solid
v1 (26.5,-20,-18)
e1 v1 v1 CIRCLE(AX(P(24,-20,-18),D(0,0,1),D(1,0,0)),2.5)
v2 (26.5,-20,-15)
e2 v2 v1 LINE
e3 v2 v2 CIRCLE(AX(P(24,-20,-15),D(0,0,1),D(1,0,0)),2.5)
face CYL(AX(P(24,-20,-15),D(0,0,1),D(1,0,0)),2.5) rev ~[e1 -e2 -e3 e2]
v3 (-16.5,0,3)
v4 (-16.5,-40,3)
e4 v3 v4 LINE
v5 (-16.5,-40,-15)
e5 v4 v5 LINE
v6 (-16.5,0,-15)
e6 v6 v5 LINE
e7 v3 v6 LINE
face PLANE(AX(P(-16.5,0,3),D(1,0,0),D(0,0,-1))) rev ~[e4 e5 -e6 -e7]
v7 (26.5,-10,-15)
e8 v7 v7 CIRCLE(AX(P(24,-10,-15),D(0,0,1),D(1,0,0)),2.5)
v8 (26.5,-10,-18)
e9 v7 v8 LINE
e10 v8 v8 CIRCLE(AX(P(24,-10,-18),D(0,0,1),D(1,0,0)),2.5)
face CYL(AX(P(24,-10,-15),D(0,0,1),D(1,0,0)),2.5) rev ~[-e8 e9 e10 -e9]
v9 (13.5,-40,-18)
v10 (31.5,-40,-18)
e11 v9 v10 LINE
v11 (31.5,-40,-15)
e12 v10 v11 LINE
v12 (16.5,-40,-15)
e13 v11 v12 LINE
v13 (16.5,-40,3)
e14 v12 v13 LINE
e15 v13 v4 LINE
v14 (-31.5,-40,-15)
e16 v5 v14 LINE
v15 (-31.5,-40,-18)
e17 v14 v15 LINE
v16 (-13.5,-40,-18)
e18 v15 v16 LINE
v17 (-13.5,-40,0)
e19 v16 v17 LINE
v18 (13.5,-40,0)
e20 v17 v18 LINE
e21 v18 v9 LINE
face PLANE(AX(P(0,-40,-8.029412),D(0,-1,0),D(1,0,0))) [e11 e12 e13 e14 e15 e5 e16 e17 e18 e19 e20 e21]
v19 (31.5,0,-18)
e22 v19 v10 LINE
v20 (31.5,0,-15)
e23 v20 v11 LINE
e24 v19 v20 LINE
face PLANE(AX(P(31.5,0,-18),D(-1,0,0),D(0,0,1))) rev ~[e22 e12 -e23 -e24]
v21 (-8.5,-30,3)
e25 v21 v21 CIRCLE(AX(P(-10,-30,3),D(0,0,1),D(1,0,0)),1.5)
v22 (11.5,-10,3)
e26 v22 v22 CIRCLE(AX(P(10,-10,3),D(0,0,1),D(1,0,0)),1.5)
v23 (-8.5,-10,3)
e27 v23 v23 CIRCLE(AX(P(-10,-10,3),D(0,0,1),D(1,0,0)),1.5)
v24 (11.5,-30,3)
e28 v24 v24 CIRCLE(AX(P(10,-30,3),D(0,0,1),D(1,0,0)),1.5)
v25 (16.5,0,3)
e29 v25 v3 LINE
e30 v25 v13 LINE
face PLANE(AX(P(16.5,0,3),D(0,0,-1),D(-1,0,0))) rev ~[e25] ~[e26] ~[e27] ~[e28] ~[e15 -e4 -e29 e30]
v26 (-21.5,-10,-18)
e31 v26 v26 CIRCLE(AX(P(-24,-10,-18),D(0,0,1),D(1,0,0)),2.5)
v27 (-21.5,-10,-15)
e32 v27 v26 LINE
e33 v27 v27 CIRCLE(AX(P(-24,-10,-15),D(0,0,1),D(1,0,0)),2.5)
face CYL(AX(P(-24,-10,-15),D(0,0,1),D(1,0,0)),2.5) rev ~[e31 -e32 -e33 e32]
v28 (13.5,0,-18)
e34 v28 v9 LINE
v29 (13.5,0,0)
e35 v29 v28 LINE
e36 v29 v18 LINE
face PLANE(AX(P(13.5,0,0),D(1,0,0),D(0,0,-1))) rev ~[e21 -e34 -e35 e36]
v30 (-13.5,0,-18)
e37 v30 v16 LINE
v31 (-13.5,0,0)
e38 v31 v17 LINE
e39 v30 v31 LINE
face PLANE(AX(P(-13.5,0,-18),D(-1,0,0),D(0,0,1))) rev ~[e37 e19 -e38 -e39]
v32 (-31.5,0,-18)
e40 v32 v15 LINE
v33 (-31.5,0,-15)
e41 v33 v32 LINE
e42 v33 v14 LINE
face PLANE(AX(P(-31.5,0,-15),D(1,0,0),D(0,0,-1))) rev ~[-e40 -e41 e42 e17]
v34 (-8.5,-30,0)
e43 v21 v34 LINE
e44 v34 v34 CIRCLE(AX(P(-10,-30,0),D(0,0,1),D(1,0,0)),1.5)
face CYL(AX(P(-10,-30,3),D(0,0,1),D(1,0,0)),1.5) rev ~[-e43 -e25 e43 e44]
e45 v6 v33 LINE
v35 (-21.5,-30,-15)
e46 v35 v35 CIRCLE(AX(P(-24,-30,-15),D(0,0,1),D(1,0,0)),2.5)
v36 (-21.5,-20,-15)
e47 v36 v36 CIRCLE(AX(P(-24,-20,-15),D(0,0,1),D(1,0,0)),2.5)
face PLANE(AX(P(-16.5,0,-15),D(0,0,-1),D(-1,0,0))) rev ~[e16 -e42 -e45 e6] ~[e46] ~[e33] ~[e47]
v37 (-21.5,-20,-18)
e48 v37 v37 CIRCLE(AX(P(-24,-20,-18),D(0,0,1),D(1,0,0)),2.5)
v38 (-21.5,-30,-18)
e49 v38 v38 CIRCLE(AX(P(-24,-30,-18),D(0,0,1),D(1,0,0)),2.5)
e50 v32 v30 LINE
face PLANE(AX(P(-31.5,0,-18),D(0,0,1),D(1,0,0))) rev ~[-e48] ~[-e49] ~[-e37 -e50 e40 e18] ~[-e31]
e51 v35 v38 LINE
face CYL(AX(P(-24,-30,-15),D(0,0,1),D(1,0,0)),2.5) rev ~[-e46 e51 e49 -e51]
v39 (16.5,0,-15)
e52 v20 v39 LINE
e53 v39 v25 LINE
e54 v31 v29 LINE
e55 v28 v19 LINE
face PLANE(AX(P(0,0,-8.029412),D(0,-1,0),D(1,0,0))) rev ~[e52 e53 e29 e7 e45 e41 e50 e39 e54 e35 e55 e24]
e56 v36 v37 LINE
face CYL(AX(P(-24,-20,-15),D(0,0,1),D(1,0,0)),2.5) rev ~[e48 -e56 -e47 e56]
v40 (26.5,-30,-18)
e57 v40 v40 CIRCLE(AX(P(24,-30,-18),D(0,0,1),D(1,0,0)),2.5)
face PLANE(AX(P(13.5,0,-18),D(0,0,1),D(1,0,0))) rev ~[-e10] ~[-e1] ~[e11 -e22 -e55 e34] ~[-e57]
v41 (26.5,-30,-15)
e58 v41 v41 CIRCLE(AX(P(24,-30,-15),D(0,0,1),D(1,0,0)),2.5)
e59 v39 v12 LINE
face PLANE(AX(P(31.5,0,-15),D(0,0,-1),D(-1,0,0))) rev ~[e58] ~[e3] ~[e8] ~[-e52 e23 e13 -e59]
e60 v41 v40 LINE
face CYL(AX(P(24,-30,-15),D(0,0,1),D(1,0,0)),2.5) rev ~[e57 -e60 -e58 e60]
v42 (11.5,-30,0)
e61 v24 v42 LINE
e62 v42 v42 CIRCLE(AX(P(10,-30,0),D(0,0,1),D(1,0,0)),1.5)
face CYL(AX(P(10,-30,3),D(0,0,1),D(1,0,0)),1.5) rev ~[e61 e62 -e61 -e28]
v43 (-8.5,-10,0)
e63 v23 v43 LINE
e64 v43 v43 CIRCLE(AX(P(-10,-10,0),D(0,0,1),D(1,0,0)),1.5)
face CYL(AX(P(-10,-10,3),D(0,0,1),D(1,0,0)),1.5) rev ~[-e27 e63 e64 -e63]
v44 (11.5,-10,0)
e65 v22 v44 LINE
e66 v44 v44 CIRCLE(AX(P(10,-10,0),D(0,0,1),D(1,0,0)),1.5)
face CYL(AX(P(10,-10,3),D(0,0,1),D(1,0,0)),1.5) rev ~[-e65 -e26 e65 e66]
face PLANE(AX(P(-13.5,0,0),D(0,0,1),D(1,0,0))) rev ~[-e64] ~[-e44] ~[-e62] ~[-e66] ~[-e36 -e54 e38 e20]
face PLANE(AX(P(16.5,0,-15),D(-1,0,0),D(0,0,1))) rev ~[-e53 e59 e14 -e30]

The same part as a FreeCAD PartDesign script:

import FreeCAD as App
import Part
import Sketcher

V = App.Vector

doc = App.newDocument("Part")
params = doc.addObject("Spreadsheet::Sheet", "Params")
for row, (alias, value) in enumerate([
    ("sketch1_width", "27 mm"),
    ("sketch1_width2", "18 mm"),
    ("sketch1_width3", "15 mm"),
    ("sketch1_height", "3 mm"),
    ("pad1_length", "40 mm"),
    ("sketch2_diameter", "3 mm"),
    ("pocket1_length", "25 mm"),
    ("sketch3_diameter", "5 mm"),
    ("pocket2_length", "25 mm"),
    ("sketch4_diameter", "5 mm"),
    ("pocket3_length", "25 mm"),
], start=1):
    params.set(f"A{row}", alias)
    params.set(f"B{row}", "=" + value)
    params.setAlias(f"B{row}", alias)

body = doc.addObject("PartDesign::Body", "Body")

# Sketch on XZ plane
sketch1 = body.newObject("Sketcher::SketchObject", "Sketch")
sketch1.AttachmentSupport = (doc.getObject("XZ_Plane"), [""])
sketch1.MapMode = "FlatFace"
sketch1.addGeometry([
    Part.LineSegment(V(-13.5, 0, 0), V(13.5, 0, 0)),  # 0
    Part.LineSegment(V(13.5, 0, 0), V(13.5, -18, 0)),  # 1
    Part.LineSegment(V(13.5, -18, 0), V(31.5, -18, 0)),  # 2
    Part.LineSegment(V(31.5, -18, 0), V(31.5, -15, 0)),  # 3
    Part.LineSegment(V(31.5, -15, 0), V(16.5, -15, 0)),  # 4
    Part.LineSegment(V(16.5, -15, 0), V(16.5, 3, 0)),  # 5
    Part.LineSegment(V(16.5, 3, 0), V(-16.5, 3, 0)),  # 6
    Part.LineSegment(V(-16.5, 3, 0), V(-16.5, -15, 0)),  # 7
    Part.LineSegment(V(-16.5, -15, 0), V(-31.5, -15, 0)),  # 8
    Part.LineSegment(V(-31.5, -15, 0), V(-31.5, -18, 0)),  # 9
    Part.LineSegment(V(-31.5, -18, 0), V(-13.5, -18, 0)),  # 10
    Part.LineSegment(V(-13.5, -18, 0), V(-13.5, 0, 0)),  # 11
], False)
sketch1.addConstraint([
    Sketcher.Constraint("Coincident", 0, 2, 1, 1),
    Sketcher.Constraint("Coincident", 1, 2, 2, 1),
    Sketcher.Constraint("Coincident", 2, 2, 3, 1),
    Sketcher.Constraint("Coincident", 3, 2, 4, 1),
    Sketcher.Constraint("Coincident", 4, 2, 5, 1),
    Sketcher.Constraint("Coincident", 5, 2, 6, 1),
    Sketcher.Constraint("Coincident", 6, 2, 7, 1),
    Sketcher.Constraint("Coincident", 7, 2, 8, 1),
    Sketcher.Constraint("Coincident", 8, 2, 9, 1),
    Sketcher.Constraint("Coincident", 9, 2, 10, 1),
    Sketcher.Constraint("Coincident", 10, 2, 11, 1),
    Sketcher.Constraint("Coincident", 11, 2, 0, 1),
    Sketcher.Constraint("Horizontal", 0),
    Sketcher.Constraint("Vertical", 1),
    Sketcher.Constraint("Horizontal", 2),
    Sketcher.Constraint("Vertical", 3),
    Sketcher.Constraint("Horizontal", 4),
    Sketcher.Constraint("Vertical", 5),
    Sketcher.Constraint("Horizontal", 6),
    Sketcher.Constraint("Vertical", 7),
    Sketcher.Constraint("Horizontal", 8),
    Sketcher.Constraint("Vertical", 9),
    Sketcher.Constraint("Horizontal", 10),
    Sketcher.Constraint("Vertical", 11),
    Sketcher.Constraint("Symmetric", 0, 2, 11, 2, -1, 1),
    Sketcher.Constraint("Symmetric", 4, 2, 7, 2, -2),
    Sketcher.Constraint("Symmetric", 2, 2, 9, 2, -2),
    Sketcher.Constraint("Equal", 10, 1),
    Sketcher.Constraint("Equal", 1, 5),
    Sketcher.Constraint("DistanceX", 0, 1, 0, 2, 27.0),
    Sketcher.Constraint("DistanceX", 2, 1, 2, 2, 18.0),
    Sketcher.Constraint("DistanceX", 4, 2, 4, 1, 15.0),
    Sketcher.Constraint("DistanceY", 3, 1, 3, 2, 3.0),
])
sketch1.setExpression("Constraints[29]", "Params.sketch1_width")
sketch1.setExpression("Constraints[30]", "Params.sketch1_width2")
sketch1.setExpression("Constraints[31]", "Params.sketch1_width3")
sketch1.setExpression("Constraints[32]", "Params.sketch1_height")
pad1 = body.newObject("PartDesign::Pad", "Pad")
pad1.Profile = sketch1
pad1.setExpression("Length", "Params.pad1_length")

# Sketch on XY plane
sketch2 = body.newObject("Sketcher::SketchObject", "Sketch001")
sketch2.AttachmentSupport = (doc.getObject("XY_Plane"), [""])
sketch2.MapMode = "FlatFace"
sketch2.AttachmentOffset = App.Placement(V(0, 0, 3), App.Rotation())
sketch2.addGeometry([
    Part.Circle(V(-10, -10, 0), V(0, 0, 1), 1.5),
    Part.Circle(V(10, -10, 0), V(0, 0, 1), 1.5),
    Part.Circle(V(10, -30, 0), V(0, 0, 1), 1.5),
    Part.Circle(V(-10, -30, 0), V(0, 0, 1), 1.5),
], False)
sketch2.addConstraint([
    Sketcher.Constraint("Equal", 0, 1),
    Sketcher.Constraint("Equal", 1, 2),
    Sketcher.Constraint("Equal", 2, 3),
    Sketcher.Constraint("Symmetric", 0, 3, 1, 3, -2),
    Sketcher.Constraint("Symmetric", 2, 3, 3, 3, -2),
    Sketcher.Constraint("Vertical", 1, 3, 2, 3),
    Sketcher.Constraint("Diameter", 0, 3.0),
    Sketcher.Constraint("DistanceX", 0, 3, -1, 1, 10.0),
    Sketcher.Constraint("DistanceY", 0, 3, -1, 1, 10.0),
    Sketcher.Constraint("DistanceY", 2, 3, -1, 1, 30.0),
])
sketch2.setExpression("Constraints[6]", "Params.sketch2_diameter")
pocket1 = body.newObject("PartDesign::Pocket", "Pocket")
pocket1.Profile = sketch2
pocket1.setExpression("Length", "Params.pocket1_length")

# Sketch on XY plane
sketch3 = body.newObject("Sketcher::SketchObject", "Sketch002")
sketch3.AttachmentSupport = (doc.getObject("XY_Plane"), [""])
sketch3.MapMode = "FlatFace"
sketch3.AttachmentOffset = App.Placement(V(0, 0, -15), App.Rotation())
sketch3.addGeometry([
    Part.Circle(V(-24, -30, 0), V(0, 0, 1), 2.5),
    Part.Circle(V(-24, -20, 0), V(0, 0, 1), 2.5),
    Part.Circle(V(-24, -10, 0), V(0, 0, 1), 2.5),
], False)
sketch3.addConstraint([
    Sketcher.Constraint("Equal", 0, 1),
    Sketcher.Constraint("Equal", 1, 2),
    Sketcher.Constraint("Vertical", 0, 3, 1, 3),
    Sketcher.Constraint("Vertical", 1, 3, 2, 3),
    Sketcher.Constraint("Diameter", 0, 5.0),
    Sketcher.Constraint("DistanceX", 0, 3, -1, 1, 24.0),
    Sketcher.Constraint("DistanceY", 0, 3, -1, 1, 30.0),
    Sketcher.Constraint("DistanceY", 1, 3, -1, 1, 20.0),
    Sketcher.Constraint("DistanceY", 2, 3, -1, 1, 10.0),
])
sketch3.setExpression("Constraints[4]", "Params.sketch3_diameter")
pocket2 = body.newObject("PartDesign::Pocket", "Pocket001")
pocket2.Profile = sketch3
pocket2.setExpression("Length", "Params.pocket2_length")

# Sketch on XY plane
sketch4 = body.newObject("Sketcher::SketchObject", "Sketch003")
sketch4.AttachmentSupport = (doc.getObject("XY_Plane"), [""])
sketch4.MapMode = "FlatFace"
sketch4.AttachmentOffset = App.Placement(V(0, 0, -15), App.Rotation())
sketch4.addGeometry([
    Part.Circle(V(24, -30, 0), V(0, 0, 1), 2.5),
    Part.Circle(V(24, -20, 0), V(0, 0, 1), 2.5),
    Part.Circle(V(24, -10, 0), V(0, 0, 1), 2.5),
], False)
sketch4.addConstraint([
    Sketcher.Constraint("Equal", 0, 1),
    Sketcher.Constraint("Equal", 1, 2),
    Sketcher.Constraint("Vertical", 0, 3, 1, 3),
    Sketcher.Constraint("Vertical", 1, 3, 2, 3),
    Sketcher.Constraint("Diameter", 0, 5.0),
    Sketcher.Constraint("DistanceX", -1, 1, 0, 3, 24.0),
    Sketcher.Constraint("DistanceY", 0, 3, -1, 1, 30.0),
    Sketcher.Constraint("DistanceY", 1, 3, -1, 1, 20.0),
    Sketcher.Constraint("DistanceY", 2, 3, -1, 1, 10.0),
])
sketch4.setExpression("Constraints[4]", "Params.sketch4_diameter")
pocket3 = body.newObject("PartDesign::Pocket", "Pocket002")
pocket3.Profile = sketch4
pocket3.setExpression("Length", "Params.pocket3_length")

doc.recompute()
